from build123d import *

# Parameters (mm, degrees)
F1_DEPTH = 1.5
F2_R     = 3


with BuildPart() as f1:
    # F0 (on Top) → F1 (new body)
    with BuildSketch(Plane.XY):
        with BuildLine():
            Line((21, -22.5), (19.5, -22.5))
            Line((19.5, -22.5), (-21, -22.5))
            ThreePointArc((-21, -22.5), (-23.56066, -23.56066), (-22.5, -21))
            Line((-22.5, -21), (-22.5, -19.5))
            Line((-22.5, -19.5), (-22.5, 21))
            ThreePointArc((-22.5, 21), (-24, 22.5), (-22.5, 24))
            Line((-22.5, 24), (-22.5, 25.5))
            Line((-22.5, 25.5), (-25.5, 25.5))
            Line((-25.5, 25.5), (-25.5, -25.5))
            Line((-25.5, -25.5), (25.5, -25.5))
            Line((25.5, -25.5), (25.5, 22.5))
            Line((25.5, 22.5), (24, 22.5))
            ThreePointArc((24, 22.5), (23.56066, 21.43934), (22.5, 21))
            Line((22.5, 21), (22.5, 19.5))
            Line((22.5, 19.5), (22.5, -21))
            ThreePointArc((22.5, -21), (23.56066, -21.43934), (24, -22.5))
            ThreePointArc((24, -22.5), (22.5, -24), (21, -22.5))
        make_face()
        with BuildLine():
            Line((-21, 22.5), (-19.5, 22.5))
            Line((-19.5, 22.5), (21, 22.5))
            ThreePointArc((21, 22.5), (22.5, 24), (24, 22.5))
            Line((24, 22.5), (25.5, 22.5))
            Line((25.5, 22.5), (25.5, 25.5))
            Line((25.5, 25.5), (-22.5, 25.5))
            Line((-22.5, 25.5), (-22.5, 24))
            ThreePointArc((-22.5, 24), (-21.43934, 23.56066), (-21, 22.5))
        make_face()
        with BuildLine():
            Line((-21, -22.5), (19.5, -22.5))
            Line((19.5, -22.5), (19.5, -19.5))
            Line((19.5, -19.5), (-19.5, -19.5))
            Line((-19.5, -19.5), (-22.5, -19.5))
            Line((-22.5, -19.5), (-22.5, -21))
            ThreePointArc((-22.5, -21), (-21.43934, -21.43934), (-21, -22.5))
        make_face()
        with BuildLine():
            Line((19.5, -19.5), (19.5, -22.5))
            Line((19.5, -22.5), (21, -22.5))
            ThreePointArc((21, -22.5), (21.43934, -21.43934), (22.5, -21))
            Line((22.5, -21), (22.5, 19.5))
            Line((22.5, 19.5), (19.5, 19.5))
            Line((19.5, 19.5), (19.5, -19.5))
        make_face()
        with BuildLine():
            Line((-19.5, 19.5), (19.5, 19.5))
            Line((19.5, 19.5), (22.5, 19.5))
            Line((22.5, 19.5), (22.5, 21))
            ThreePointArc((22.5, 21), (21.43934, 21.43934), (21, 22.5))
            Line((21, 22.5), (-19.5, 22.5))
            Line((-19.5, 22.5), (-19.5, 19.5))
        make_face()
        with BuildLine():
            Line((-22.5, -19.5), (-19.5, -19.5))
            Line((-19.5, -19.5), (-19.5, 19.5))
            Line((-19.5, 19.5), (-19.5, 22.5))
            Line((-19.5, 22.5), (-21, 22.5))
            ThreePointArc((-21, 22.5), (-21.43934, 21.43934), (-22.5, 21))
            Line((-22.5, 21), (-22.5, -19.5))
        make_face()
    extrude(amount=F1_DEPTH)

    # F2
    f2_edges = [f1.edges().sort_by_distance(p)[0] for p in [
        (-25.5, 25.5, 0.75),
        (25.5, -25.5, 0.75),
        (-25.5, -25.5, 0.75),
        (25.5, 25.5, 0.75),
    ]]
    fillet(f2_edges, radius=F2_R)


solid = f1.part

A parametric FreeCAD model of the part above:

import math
import FreeCAD as App
import Part
import Sketcher
Q = App.Units.Quantity


def edges_at(feature, points):
    """Names of the edges that pass closest to the given points."""
    edges = feature.Shape.Edges
    near = lambda p: min(range(len(edges)), key=lambda i: edges[i].distToShape(Part.Vertex(*p))[0])
    return sorted({f"Edge{near(p) + 1}" for p in points})

doc = App.newDocument("Part")
params = doc.addObject("Spreadsheet::Sheet", "Params")
for row, (alias, value) in enumerate([
    ("sketch1_radius", "1.5 mm"),
    ("sketch1_width", "51 mm"),
    ("sketch1_width2", "39 mm"),
    ("pad1_length", "1.5 mm"),
    ("fillet_radius", "3 mm"),
], start=1):
    params.set(f"A{row}", alias)
    params.set(f"B{row}", "=" + value)
    params.setAlias(f"B{row}", alias)

body = doc.addObject("PartDesign::Body", "Body")

sketch1 = body.newObject("Sketcher::SketchObject", "Sketch")
sketch1.AttachmentSupport = (doc.getObject("XY_Plane"), [""])
sketch1.MapMode = "FlatFace"
sketch1.addGeometry([
    Part.LineSegment(App.Vector(-25.5, 25.5, 0), App.Vector(-25.5, -25.5, 0)),
    Part.LineSegment(App.Vector(-25.5, -25.5, 0), App.Vector(25.5, -25.5, 0)),
    Part.LineSegment(App.Vector(25.5, -25.5, 0), App.Vector(25.5, 25.5, 0)),
    Part.LineSegment(App.Vector(25.5, 25.5, 0), App.Vector(-25.5, 25.5, 0)),
    Part.LineSegment(App.Vector(19.5, -19.5, 0), App.Vector(-19.5, -19.5, 0)),
    Part.LineSegment(App.Vector(-19.5, -19.5, 0), App.Vector(-19.5, 19.5, 0)),
    Part.LineSegment(App.Vector(-19.5, 19.5, 0), App.Vector(19.5, 19.5, 0)),
    Part.LineSegment(App.Vector(19.5, 19.5, 0), App.Vector(19.5, -19.5, 0)),
    Part.ArcOfCircle(Part.Circle(App.Vector(-22.5, 22.5, 0), App.Vector(0, 0, 1), 1.5), math.radians(90), math.radians(270)),
    Part.ArcOfCircle(Part.Circle(App.Vector(-22.500001, 22.499999, 0), App.Vector(0, 0, 1), 1.500001), math.radians(0.000022), math.radians(89.999978)),
    Part.ArcOfCircle(Part.Circle(App.Vector(-22.500001, 22.500001, 0), App.Vector(0, 0, 1), 1.500001), math.radians(-89.999978), math.radians(-0.000022)),
    Part.ArcOfCircle(Part.Circle(App.Vector(22.5, 22.5, 0), App.Vector(0, 0, 1), 1.5), math.radians(0), math.radians(180)),
    Part.ArcOfCircle(Part.Circle(App.Vector(22.499999, 22.500001, 0), App.Vector(0, 0, 1), 1.500001), math.radians(-89.999978), math.radians(-0.000022)),
    Part.ArcOfCircle(Part.Circle(App.Vector(22.500001, 22.500001, 0), App.Vector(0, 0, 1), 1.500001), math.radians(-179.999978), math.radians(-90.000022)),
    Part.ArcOfCircle(Part.Circle(App.Vector(22.499999, -22.500001, 0), App.Vector(0, 0, 1), 1.500001), math.radians(0.000022), math.radians(89.999978)),
    Part.ArcOfCircle(Part.Circle(App.Vector(22.5, -22.5, 0), App.Vector(0, 0, 1), 1.5), math.radians(180), math.radians(360)),
    Part.ArcOfCircle(Part.Circle(App.Vector(22.500001, -22.500001, 0), App.Vector(0, 0, 1), 1.500001), math.radians(90.000022), math.radians(179.999978)),
    Part.ArcOfCircle(Part.Circle(App.Vector(-22.5, -22.5, 0), App.Vector(0, 0, 1), 1.5), math.radians(90.000004), math.radians(359.999996)),
    Part.ArcOfCircle(Part.Circle(App.Vector(-22.500001, -22.500001, 0), App.Vector(0, 0, 1), 1.500001), math.radians(0.000022), math.radians(89.999978)),
], False)
sketch1.addConstraint([
    Sketcher.Constraint("Coincident", 0, 2, 1, 1),
    Sketcher.Constraint("Coincident", 1, 2, 2, 1),
    Sketcher.Constraint("Coincident", 2, 2, 3, 1),
    Sketcher.Constraint("Coincident", 3, 2, 0, 1),
    Sketcher.Constraint("Coincident", 4, 2, 5, 1),
    Sketcher.Constraint("Coincident", 5, 2, 6, 1),
    Sketcher.Constraint("Coincident", 6, 2, 7, 1),
    Sketcher.Constraint("Coincident", 7, 2, 4, 1),
    Sketcher.Constraint("Tangent", 8, 1, 9, 2),
    Sketcher.Constraint("Tangent", 9, 1, 10, 2),
    Sketcher.Constraint("Tangent", 10, 1, 8, 2),
    Sketcher.Constraint("Tangent", 11, 1, 12, 2),
    Sketcher.Constraint("Tangent", 12, 1, 13, 2),
    Sketcher.Constraint("Tangent", 13, 1, 11, 2),
    Sketcher.Constraint("Tangent", 14, 1, 15, 2),
    Sketcher.Constraint("Tangent", 15, 1, 16, 2),
    Sketcher.Constraint("Tangent", 16, 1, 14, 2),
    Sketcher.Constraint("Tangent", 17, 1, 18, 2),
    Sketcher.Constraint("Coincident", 18, 1, 17, 2),
    Sketcher.Constraint("Vertical", 0),
    Sketcher.Constraint("Horizontal", 1),
    Sketcher.Constraint("Vertical", 2),
    Sketcher.Constraint("Horizontal", 3),
    Sketcher.Constraint("Horizontal", 4),
    Sketcher.Constraint("Vertical", 5),
    Sketcher.Constraint("Horizontal", 6),
    Sketcher.Constraint("Vertical", 7),
    Sketcher.Constraint("Equal", 10, 11),
    Sketcher.Constraint("Equal", 13, 14),
    Sketcher.Constraint("Equal", 16, 17),
    Sketcher.Constraint("Symmetric", 8, 3, 14, 3, -1, 1),
    Sketcher.Constraint("Symmetric", 11, 3, 17, 3, -1, 1),
    Sketcher.Constraint("Symmetric", 0, 2, 2, 2, -1, 1),
    Sketcher.Constraint("Symmetric", 4, 2, 6, 2, -1, 1),
    Sketcher.Constraint("Symmetric", 8, 3, 11, 3, -2),
    Sketcher.Constraint("Horizontal", 13, 3, 9, 1),
    Sketcher.Constraint("Horizontal", 9, 1, 11, 1),
    Sketcher.Constraint("Horizontal", 11, 1, 13, 1),
    Sketcher.Constraint("Horizontal", 18, 3, 14, 1),
    Sketcher.Constraint("Horizontal", 14, 1, 15, 1),
    Sketcher.Constraint("Horizontal", 15, 1, 18, 1),
    Sketcher.Constraint("Vertical", 18, 3, 8, 1),
    Sketcher.Constraint("Vertical", 8, 1, 10, 1),
    Sketcher.Constraint("Vertical", 16, 3, 12, 1),
    Sketcher.Constraint("Vertical", 12, 1, 16, 1),
    Sketcher.Constraint("Vertical", 10, 1, 17, 1),
    Sketcher.Constraint("Equal", 3, 0),
    Sketcher.Constraint("Equal", 6, 5),
    Sketcher.Constraint("Radius", 8, Q("1.5 mm")),
    Sketcher.Constraint("DistanceX", 1, 1, 1, 2, Q("51 mm")),
    Sketcher.Constraint("DistanceX", 4, 2, 4, 1, Q("39 mm")),
    Sketcher.Constraint("DistanceY", -1, 1, 8, 1, Q("24 mm")),
    Sketcher.Constraint("DistanceX", 9, 1, -1, 1, Q("21 mm")),
])
sketch1.setExpression("Constraints[48]", "Params.sketch1_radius")
sketch1.setExpression("Constraints[49]", "Params.sketch1_width")
sketch1.setExpression("Constraints[50]", "Params.sketch1_width2")
pad1 = body.newObject("PartDesign::Pad", "Pad")
pad1.Profile = sketch1
pad1.setExpression("Length", "Params.pad1_length")
doc.recompute()

fillet = body.newObject("PartDesign::Fillet", "Fillet")
fillet.Base = (pad1, edges_at(pad1, [
    (-25.5, 25.5, 0.75),
    (25.5, -25.5, 0.75),
    (-25.5, -25.5, 0.75),
    (25.5, 25.5, 0.75),
]))
fillet.setExpression("Radius", "Params.fillet_radius")

doc.recompute()
